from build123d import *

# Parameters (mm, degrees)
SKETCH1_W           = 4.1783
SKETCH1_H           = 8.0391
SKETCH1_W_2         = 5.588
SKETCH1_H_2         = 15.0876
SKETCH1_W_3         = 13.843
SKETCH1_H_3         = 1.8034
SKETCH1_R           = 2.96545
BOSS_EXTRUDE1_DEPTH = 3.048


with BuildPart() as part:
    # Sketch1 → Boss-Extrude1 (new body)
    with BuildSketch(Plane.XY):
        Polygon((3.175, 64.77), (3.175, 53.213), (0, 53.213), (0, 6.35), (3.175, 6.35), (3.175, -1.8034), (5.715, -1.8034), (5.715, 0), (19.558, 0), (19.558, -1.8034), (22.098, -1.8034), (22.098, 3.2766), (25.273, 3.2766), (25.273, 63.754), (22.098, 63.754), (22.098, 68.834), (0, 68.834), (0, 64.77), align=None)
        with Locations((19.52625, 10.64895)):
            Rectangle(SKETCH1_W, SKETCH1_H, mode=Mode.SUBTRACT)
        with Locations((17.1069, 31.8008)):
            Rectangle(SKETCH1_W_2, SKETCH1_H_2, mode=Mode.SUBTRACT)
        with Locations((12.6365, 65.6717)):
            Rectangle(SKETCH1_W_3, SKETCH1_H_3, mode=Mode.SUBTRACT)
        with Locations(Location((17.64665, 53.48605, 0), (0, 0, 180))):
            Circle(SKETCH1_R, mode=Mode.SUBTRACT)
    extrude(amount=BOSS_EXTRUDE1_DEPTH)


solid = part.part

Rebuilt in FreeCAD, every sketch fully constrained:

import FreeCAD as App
import Part
import Sketcher
from FreeCAD import Vector
Q = App.Units.Quantity

doc = App.newDocument("Part")
body = doc.addObject("PartDesign::Body", "Body")

# Sketch on XY plane
sketch1 = body.newObject("Sketcher::SketchObject", "Sketch")
sketch1.AttachmentSupport = (doc.getObject("XY_Plane"), [""])
sketch1.MapMode = "FlatFace"
sketch1.addGeometry(Part.LineSegment(Vector(3.2, 64.8, 0), Vector(3.2, 53.2, 0)), False)
sketch1.addGeometry(Part.LineSegment(Vector(3.2, 53.2, 0), Vector(0, 53.2, 0)), False)
sketch1.addGeometry(Part.LineSegment(Vector(0, 53.2, 0), Vector(0, 6.3, 0)), False)
sketch1.addGeometry(Part.LineSegment(Vector(0, 6.3, 0), Vector(3.2, 6.3, 0)), False)
sketch1.addGeometry(Part.LineSegment(Vector(3.2, 6.3, 0), Vector(3.2, -1.8, 0)), False)
sketch1.addGeometry(Part.LineSegment(Vector(3.2, -1.8, 0), Vector(5.7, -1.8, 0)), False)
sketch1.addGeometry(Part.LineSegment(Vector(5.7, -1.8, 0), Vector(5.7, 0, 0)), False)
sketch1.addGeometry(Part.LineSegment(Vector(5.7, 0, 0), Vector(19.6, 0, 0)), False)
sketch1.addGeometry(Part.LineSegment(Vector(19.6, 0, 0), Vector(19.6, -1.8, 0)), False)
sketch1.addGeometry(Part.LineSegment(Vector(19.6, -1.8, 0), Vector(22.1, -1.8, 0)), False)
sketch1.addGeometry(Part.LineSegment(Vector(22.1, -1.8, 0), Vector(22.1, 3.3, 0)), False)
sketch1.addGeometry(Part.LineSegment(Vector(22.1, 3.3, 0), Vector(25.3, 3.3, 0)), False)
sketch1.addGeometry(Part.LineSegment(Vector(25.3, 3.3, 0), Vector(25.3, 63.8, 0)), False)
sketch1.addGeometry(Part.LineSegment(Vector(25.3, 63.8, 0), Vector(22.1, 63.8, 0)), False)
sketch1.addGeometry(Part.LineSegment(Vector(22.1, 63.8, 0), Vector(22.1, 68.8, 0)), False)
sketch1.addGeometry(Part.LineSegment(Vector(22.1, 68.8, 0), Vector(0, 68.8, 0)), False)
sketch1.addGeometry(Part.LineSegment(Vector(0, 68.8, 0), Vector(0, 64.8, 0)), False)
sketch1.addGeometry(Part.LineSegment(Vector(0, 64.8, 0), Vector(3.2, 64.8, 0)), False)
sketch1.addGeometry(Part.LineSegment(Vector(21.6, 6.6, 0), Vector(17.4, 6.6, 0)), False)
sketch1.addGeometry(Part.LineSegment(Vector(17.4, 6.6, 0), Vector(17.4, 14.7, 0)), False)
sketch1.addGeometry(Part.LineSegment(Vector(17.4, 14.7, 0), Vector(21.6, 14.7, 0)), False)
sketch1.addGeometry(Part.LineSegment(Vector(21.6, 14.7, 0), Vector(21.6, 6.6, 0)), False)
sketch1.addGeometry(Part.LineSegment(Vector(19.9, 24.3, 0), Vector(14.3, 24.3, 0)), False)
sketch1.addGeometry(Part.LineSegment(Vector(14.3, 24.3, 0), Vector(14.3, 39.3, 0)), False)
sketch1.addGeometry(Part.LineSegment(Vector(14.3, 39.3, 0), Vector(19.9, 39.3, 0)), False)
sketch1.addGeometry(Part.LineSegment(Vector(19.9, 39.3, 0), Vector(19.9, 24.3, 0)), False)
sketch1.addGeometry(Part.LineSegment(Vector(19.6, 64.8, 0), Vector(5.7, 64.8, 0)), False)
sketch1.addGeometry(Part.LineSegment(Vector(5.7, 64.8, 0), Vector(5.7, 66.6, 0)), False)
sketch1.addGeometry(Part.LineSegment(Vector(5.7, 66.6, 0), Vector(19.6, 66.6, 0)), False)
sketch1.addGeometry(Part.LineSegment(Vector(19.6, 66.6, 0), Vector(19.6, 64.8, 0)), False)
sketch1.addGeometry(Part.Circle(Vector(17.6, 53.5, 0), Vector(0, 0, 1), 3), False)
sketch1.addConstraint(Sketcher.Constraint("Coincident", 0, 2, 1, 1))
sketch1.addConstraint(Sketcher.Constraint("Coincident", 1, 2, 2, 1))
sketch1.addConstraint(Sketcher.Constraint("Coincident", 2, 2, 3, 1))
sketch1.addConstraint(Sketcher.Constraint("Coincident", 3, 2, 4, 1))
sketch1.addConstraint(Sketcher.Constraint("Coincident", 4, 2, 5, 1))
sketch1.addConstraint(Sketcher.Constraint("Coincident", 5, 2, 6, 1))
sketch1.addConstraint(Sketcher.Constraint("Coincident", 6, 2, 7, 1))
sketch1.addConstraint(Sketcher.Constraint("Coincident", 7, 2, 8, 1))
sketch1.addConstraint(Sketcher.Constraint("Coincident", 8, 2, 9, 1))
sketch1.addConstraint(Sketcher.Constraint("Coincident", 9, 2, 10, 1))
sketch1.addConstraint(Sketcher.Constraint("Coincident", 10, 2, 11, 1))
sketch1.addConstraint(Sketcher.Constraint("Coincident", 11, 2, 12, 1))
sketch1.addConstraint(Sketcher.Constraint("Coincident", 12, 2, 13, 1))
sketch1.addConstraint(Sketcher.Constraint("Coincident", 13, 2, 14, 1))
sketch1.addConstraint(Sketcher.Constraint("Coincident", 14, 2, 15, 1))
sketch1.addConstraint(Sketcher.Constraint("Coincident", 15, 2, 16, 1))
sketch1.addConstraint(Sketcher.Constraint("Coincident", 16, 2, 17, 1))
sketch1.addConstraint(Sketcher.Constraint("Coincident", 17, 2, 0, 1))
sketch1.addConstraint(Sketcher.Constraint("Coincident", 18, 2, 19, 1))
sketch1.addConstraint(Sketcher.Constraint("Coincident", 19, 2, 20, 1))
sketch1.addConstraint(Sketcher.Constraint("Coincident", 20, 2, 21, 1))
sketch1.addConstraint(Sketcher.Constraint("Coincident", 21, 2, 18, 1))
sketch1.addConstraint(Sketcher.Constraint("Coincident", 22, 2, 23, 1))
sketch1.addConstraint(Sketcher.Constraint("Coincident", 23, 2, 24, 1))
sketch1.addConstraint(Sketcher.Constraint("Coincident", 24, 2, 25, 1))
sketch1.addConstraint(Sketcher.Constraint("Coincident", 25, 2, 22, 1))
sketch1.addConstraint(Sketcher.Constraint("Coincident", 26, 2, 27, 1))
sketch1.addConstraint(Sketcher.Constraint("Coincident", 27, 2, 28, 1))
sketch1.addConstraint(Sketcher.Constraint("Coincident", 28, 2, 29, 1))
sketch1.addConstraint(Sketcher.Constraint("Coincident", 29, 2, 26, 1))
sketch1.addConstraint(Sketcher.Constraint("Vertical", 0))
sketch1.addConstraint(Sketcher.Constraint("Horizontal", 1))
sketch1.addConstraint(Sketcher.Constraint("Vertical", 2))
sketch1.addConstraint(Sketcher.Constraint("Horizontal", 3))
sketch1.addConstraint(Sketcher.Constraint("Vertical", 4))
sketch1.addConstraint(Sketcher.Constraint("Horizontal", 5))
sketch1.addConstraint(Sketcher.Constraint("Vertical", 6))
sketch1.addConstraint(Sketcher.Constraint("Horizontal", 7))
sketch1.addConstraint(Sketcher.Constraint("Vertical", 8))
sketch1.addConstraint(Sketcher.Constraint("Horizontal", 9))
sketch1.addConstraint(Sketcher.Constraint("Vertical", 10))
sketch1.addConstraint(Sketcher.Constraint("Horizontal", 11))
sketch1.addConstraint(Sketcher.Constraint("Vertical", 12))
sketch1.addConstraint(Sketcher.Constraint("Horizontal", 13))
sketch1.addConstraint(Sketcher.Constraint("Vertical", 14))
sketch1.addConstraint(Sketcher.Constraint("Horizontal", 15))
sketch1.addConstraint(Sketcher.Constraint("Vertical", 16))
sketch1.addConstraint(Sketcher.Constraint("Horizontal", 17))
sketch1.addConstraint(Sketcher.Constraint("Horizontal", 18))
sketch1.addConstraint(Sketcher.Constraint("Vertical", 19))
sketch1.addConstraint(Sketcher.Constraint("Horizontal", 20))
sketch1.addConstraint(Sketcher.Constraint("Vertical", 21))
sketch1.addConstraint(Sketcher.Constraint("Horizontal", 22))
sketch1.addConstraint(Sketcher.Constraint("Vertical", 23))
sketch1.addConstraint(Sketcher.Constraint("Horizontal", 24))
sketch1.addConstraint(Sketcher.Constraint("Vertical", 25))
sketch1.addConstraint(Sketcher.Constraint("Horizontal", 26))
sketch1.addConstraint(Sketcher.Constraint("Vertical", 27))
sketch1.addConstraint(Sketcher.Constraint("Horizontal", 28))
sketch1.addConstraint(Sketcher.Constraint("Vertical", 29))
sketch1.addConstraint(Sketcher.Constraint("PointOnObject", 1, 2, -2))
sketch1.addConstraint(Sketcher.Constraint("PointOnObject", 6, 2, -1))
sketch1.addConstraint(Sketcher.Constraint("PointOnObject", 15, 2, -2))
sketch1.addConstraint(Sketcher.Constraint("Horizontal", 5, 2, 8, 2))
sketch1.addConstraint(Sketcher.Constraint("Horizontal", 17, 2, 26, 2))
sketch1.addConstraint(Sketcher.Constraint("Vertical", 0, 2, 3, 2))
sketch1.addConstraint(Sketcher.Constraint("Vertical", 10, 2, 13, 2))
sketch1.addConstraint(Sketcher.Constraint("Vertical", 6, 2, 26, 2))
sketch1.addConstraint(Sketcher.Constraint("Vertical", 8, 2, 28, 2))
sketch1.addConstraint(Sketcher.Constraint("Equal", 5, 9))
sketch1.addConstraint(Sketcher.Constraint("Equal", 3, 11))
sketch1.addConstraint(Sketcher.Constraint("Equal", 10, 14))
sketch1.addConstraint(Sketcher.Constraint("Equal", 8, 27))
sketch1.addConstraint(Sketcher.Constraint("DistanceX", 5, 1, 5, 2, Q("0.1 in")))
sketch1.addConstraint(Sketcher.Constraint("DistanceY", 10, 1, 10, 2, Q("0.2 in")))
sketch1.addConstraint(Sketcher.Constraint("Diameter", 30, Q("0.2335 in")))
sketch1.addConstraint(Sketcher.Constraint("DistanceX", 15, 2, 15, 1, Q("0.87 in")))
sketch1.addConstraint(Sketcher.Constraint("DistanceX", 22, 2, 22, 1, Q("0.22 in")))
sketch1.addConstraint(Sketcher.Constraint("DistanceY", 16, 2, 16, 1, Q("0.16 in")))
sketch1.addConstraint(Sketcher.Constraint("DistanceX", 1, 2, 1, 1, Q("0.125 in")))
sketch1.addConstraint(Sketcher.Constraint("DistanceY", 0, 2, 0, 1, Q("0.455 in")))
sketch1.addConstraint(Sketcher.Constraint("DistanceY", 2, 2, 2, 1, Q("1.845 in")))
sketch1.addConstraint(Sketcher.Constraint("DistanceY", 4, 2, 4, 1, Q("0.321 in")))
sketch1.addConstraint(Sketcher.Constraint("DistanceY", 6, 1, 6, 2, Q("0.071 in")))
sketch1.addConstraint(Sketcher.Constraint("DistanceY", 23, 1, 23, 2, Q("0.594 in")))
sketch1.addConstraint(Sketcher.Constraint("DistanceX", 18, 2, 18, 1, Q("0.1645 in")))
sketch1.addConstraint(Sketcher.Constraint("DistanceY", 19, 1, 19, 2, Q("0.3165 in")))
sketch1.addConstraint(Sketcher.Constraint("DistanceY", -1, 1, 18, 2, Q("0.261 in")))
sketch1.addConstraint(Sketcher.Constraint("DistanceX", -1, 1, 20, 2, Q("0.851 in")))
sketch1.addConstraint(Sketcher.Constraint("DistanceY", -1, 1, 22, 2, Q("0.955 in")))
sketch1.addConstraint(Sketcher.Constraint("DistanceX", 22, 2, 19, 2, Q("0.123 in")))
sketch1.addConstraint(Sketcher.Constraint("DistanceX", -1, 1, 30, 3, Q("17.64665 mm")))
sketch1.addConstraint(Sketcher.Constraint("DistanceY", -1, 1, 30, 3, Q("53.48605 mm")))
pad1 = body.newObject("PartDesign::Pad", "Pad")
pad1.Profile = sketch1
pad1.Length = Q("0.12 in")

doc.recompute()
